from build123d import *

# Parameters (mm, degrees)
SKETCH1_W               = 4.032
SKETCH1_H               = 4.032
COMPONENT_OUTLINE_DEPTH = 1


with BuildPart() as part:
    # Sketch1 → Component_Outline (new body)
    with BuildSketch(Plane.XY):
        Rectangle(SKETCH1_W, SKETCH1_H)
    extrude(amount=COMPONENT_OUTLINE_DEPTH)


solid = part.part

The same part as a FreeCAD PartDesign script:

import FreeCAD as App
import Part
import Sketcher
from FreeCAD import Vector
Q = App.Units.Quantity

doc = App.newDocument("Part")
body = doc.addObject("PartDesign::Body", "Body")

sketch1 = body.newObject("Sketcher::SketchObject", "Sketch")
sketch1.AttachmentSupport = (doc.getObject("XY_Plane"), [""])
sketch1.MapMode = "FlatFace"
sketch1.addGeometry([
    Part.LineSegment(Vector(-2.016, 2.016, 0), Vector(-2.016, -2.016, 0)),
    Part.LineSegment(Vector(-2.016, -2.016, 0), Vector(2.016, -2.016, 0)),
    Part.LineSegment(Vector(2.016, -2.016, 0), Vector(2.016, 2.016, 0)),
    Part.LineSegment(Vector(2.016, 2.016, 0), Vector(-2.016, 2.016, 0)),
], False)
sketch1.addConstraint([
    Sketcher.Constraint("Coincident", 0, 2, 1, 1),
    Sketcher.Constraint("Coincident", 1, 2, 2, 1),
    Sketcher.Constraint("Coincident", 2, 2, 3, 1),
    Sketcher.Constraint("Coincident", 3, 2, 0, 1),
    Sketcher.Constraint("Vertical", 0),
    Sketcher.Constraint("Horizontal", 1),
    Sketcher.Constraint("Vertical", 2),
    Sketcher.Constraint("Horizontal", 3),
    Sketcher.Constraint("Symmetric", 0, 2, 2, 2, -1, 1),
    Sketcher.Constraint("Equal", 3, 0),
    Sketcher.Constraint("DistanceX", 1, 1, 1, 2, Q("4.032 mm")),
])
pad1 = body.newObject("PartDesign::Pad", "Pad")
pad1.Profile = sketch1
pad1.Length = 1

doc.recompute()
